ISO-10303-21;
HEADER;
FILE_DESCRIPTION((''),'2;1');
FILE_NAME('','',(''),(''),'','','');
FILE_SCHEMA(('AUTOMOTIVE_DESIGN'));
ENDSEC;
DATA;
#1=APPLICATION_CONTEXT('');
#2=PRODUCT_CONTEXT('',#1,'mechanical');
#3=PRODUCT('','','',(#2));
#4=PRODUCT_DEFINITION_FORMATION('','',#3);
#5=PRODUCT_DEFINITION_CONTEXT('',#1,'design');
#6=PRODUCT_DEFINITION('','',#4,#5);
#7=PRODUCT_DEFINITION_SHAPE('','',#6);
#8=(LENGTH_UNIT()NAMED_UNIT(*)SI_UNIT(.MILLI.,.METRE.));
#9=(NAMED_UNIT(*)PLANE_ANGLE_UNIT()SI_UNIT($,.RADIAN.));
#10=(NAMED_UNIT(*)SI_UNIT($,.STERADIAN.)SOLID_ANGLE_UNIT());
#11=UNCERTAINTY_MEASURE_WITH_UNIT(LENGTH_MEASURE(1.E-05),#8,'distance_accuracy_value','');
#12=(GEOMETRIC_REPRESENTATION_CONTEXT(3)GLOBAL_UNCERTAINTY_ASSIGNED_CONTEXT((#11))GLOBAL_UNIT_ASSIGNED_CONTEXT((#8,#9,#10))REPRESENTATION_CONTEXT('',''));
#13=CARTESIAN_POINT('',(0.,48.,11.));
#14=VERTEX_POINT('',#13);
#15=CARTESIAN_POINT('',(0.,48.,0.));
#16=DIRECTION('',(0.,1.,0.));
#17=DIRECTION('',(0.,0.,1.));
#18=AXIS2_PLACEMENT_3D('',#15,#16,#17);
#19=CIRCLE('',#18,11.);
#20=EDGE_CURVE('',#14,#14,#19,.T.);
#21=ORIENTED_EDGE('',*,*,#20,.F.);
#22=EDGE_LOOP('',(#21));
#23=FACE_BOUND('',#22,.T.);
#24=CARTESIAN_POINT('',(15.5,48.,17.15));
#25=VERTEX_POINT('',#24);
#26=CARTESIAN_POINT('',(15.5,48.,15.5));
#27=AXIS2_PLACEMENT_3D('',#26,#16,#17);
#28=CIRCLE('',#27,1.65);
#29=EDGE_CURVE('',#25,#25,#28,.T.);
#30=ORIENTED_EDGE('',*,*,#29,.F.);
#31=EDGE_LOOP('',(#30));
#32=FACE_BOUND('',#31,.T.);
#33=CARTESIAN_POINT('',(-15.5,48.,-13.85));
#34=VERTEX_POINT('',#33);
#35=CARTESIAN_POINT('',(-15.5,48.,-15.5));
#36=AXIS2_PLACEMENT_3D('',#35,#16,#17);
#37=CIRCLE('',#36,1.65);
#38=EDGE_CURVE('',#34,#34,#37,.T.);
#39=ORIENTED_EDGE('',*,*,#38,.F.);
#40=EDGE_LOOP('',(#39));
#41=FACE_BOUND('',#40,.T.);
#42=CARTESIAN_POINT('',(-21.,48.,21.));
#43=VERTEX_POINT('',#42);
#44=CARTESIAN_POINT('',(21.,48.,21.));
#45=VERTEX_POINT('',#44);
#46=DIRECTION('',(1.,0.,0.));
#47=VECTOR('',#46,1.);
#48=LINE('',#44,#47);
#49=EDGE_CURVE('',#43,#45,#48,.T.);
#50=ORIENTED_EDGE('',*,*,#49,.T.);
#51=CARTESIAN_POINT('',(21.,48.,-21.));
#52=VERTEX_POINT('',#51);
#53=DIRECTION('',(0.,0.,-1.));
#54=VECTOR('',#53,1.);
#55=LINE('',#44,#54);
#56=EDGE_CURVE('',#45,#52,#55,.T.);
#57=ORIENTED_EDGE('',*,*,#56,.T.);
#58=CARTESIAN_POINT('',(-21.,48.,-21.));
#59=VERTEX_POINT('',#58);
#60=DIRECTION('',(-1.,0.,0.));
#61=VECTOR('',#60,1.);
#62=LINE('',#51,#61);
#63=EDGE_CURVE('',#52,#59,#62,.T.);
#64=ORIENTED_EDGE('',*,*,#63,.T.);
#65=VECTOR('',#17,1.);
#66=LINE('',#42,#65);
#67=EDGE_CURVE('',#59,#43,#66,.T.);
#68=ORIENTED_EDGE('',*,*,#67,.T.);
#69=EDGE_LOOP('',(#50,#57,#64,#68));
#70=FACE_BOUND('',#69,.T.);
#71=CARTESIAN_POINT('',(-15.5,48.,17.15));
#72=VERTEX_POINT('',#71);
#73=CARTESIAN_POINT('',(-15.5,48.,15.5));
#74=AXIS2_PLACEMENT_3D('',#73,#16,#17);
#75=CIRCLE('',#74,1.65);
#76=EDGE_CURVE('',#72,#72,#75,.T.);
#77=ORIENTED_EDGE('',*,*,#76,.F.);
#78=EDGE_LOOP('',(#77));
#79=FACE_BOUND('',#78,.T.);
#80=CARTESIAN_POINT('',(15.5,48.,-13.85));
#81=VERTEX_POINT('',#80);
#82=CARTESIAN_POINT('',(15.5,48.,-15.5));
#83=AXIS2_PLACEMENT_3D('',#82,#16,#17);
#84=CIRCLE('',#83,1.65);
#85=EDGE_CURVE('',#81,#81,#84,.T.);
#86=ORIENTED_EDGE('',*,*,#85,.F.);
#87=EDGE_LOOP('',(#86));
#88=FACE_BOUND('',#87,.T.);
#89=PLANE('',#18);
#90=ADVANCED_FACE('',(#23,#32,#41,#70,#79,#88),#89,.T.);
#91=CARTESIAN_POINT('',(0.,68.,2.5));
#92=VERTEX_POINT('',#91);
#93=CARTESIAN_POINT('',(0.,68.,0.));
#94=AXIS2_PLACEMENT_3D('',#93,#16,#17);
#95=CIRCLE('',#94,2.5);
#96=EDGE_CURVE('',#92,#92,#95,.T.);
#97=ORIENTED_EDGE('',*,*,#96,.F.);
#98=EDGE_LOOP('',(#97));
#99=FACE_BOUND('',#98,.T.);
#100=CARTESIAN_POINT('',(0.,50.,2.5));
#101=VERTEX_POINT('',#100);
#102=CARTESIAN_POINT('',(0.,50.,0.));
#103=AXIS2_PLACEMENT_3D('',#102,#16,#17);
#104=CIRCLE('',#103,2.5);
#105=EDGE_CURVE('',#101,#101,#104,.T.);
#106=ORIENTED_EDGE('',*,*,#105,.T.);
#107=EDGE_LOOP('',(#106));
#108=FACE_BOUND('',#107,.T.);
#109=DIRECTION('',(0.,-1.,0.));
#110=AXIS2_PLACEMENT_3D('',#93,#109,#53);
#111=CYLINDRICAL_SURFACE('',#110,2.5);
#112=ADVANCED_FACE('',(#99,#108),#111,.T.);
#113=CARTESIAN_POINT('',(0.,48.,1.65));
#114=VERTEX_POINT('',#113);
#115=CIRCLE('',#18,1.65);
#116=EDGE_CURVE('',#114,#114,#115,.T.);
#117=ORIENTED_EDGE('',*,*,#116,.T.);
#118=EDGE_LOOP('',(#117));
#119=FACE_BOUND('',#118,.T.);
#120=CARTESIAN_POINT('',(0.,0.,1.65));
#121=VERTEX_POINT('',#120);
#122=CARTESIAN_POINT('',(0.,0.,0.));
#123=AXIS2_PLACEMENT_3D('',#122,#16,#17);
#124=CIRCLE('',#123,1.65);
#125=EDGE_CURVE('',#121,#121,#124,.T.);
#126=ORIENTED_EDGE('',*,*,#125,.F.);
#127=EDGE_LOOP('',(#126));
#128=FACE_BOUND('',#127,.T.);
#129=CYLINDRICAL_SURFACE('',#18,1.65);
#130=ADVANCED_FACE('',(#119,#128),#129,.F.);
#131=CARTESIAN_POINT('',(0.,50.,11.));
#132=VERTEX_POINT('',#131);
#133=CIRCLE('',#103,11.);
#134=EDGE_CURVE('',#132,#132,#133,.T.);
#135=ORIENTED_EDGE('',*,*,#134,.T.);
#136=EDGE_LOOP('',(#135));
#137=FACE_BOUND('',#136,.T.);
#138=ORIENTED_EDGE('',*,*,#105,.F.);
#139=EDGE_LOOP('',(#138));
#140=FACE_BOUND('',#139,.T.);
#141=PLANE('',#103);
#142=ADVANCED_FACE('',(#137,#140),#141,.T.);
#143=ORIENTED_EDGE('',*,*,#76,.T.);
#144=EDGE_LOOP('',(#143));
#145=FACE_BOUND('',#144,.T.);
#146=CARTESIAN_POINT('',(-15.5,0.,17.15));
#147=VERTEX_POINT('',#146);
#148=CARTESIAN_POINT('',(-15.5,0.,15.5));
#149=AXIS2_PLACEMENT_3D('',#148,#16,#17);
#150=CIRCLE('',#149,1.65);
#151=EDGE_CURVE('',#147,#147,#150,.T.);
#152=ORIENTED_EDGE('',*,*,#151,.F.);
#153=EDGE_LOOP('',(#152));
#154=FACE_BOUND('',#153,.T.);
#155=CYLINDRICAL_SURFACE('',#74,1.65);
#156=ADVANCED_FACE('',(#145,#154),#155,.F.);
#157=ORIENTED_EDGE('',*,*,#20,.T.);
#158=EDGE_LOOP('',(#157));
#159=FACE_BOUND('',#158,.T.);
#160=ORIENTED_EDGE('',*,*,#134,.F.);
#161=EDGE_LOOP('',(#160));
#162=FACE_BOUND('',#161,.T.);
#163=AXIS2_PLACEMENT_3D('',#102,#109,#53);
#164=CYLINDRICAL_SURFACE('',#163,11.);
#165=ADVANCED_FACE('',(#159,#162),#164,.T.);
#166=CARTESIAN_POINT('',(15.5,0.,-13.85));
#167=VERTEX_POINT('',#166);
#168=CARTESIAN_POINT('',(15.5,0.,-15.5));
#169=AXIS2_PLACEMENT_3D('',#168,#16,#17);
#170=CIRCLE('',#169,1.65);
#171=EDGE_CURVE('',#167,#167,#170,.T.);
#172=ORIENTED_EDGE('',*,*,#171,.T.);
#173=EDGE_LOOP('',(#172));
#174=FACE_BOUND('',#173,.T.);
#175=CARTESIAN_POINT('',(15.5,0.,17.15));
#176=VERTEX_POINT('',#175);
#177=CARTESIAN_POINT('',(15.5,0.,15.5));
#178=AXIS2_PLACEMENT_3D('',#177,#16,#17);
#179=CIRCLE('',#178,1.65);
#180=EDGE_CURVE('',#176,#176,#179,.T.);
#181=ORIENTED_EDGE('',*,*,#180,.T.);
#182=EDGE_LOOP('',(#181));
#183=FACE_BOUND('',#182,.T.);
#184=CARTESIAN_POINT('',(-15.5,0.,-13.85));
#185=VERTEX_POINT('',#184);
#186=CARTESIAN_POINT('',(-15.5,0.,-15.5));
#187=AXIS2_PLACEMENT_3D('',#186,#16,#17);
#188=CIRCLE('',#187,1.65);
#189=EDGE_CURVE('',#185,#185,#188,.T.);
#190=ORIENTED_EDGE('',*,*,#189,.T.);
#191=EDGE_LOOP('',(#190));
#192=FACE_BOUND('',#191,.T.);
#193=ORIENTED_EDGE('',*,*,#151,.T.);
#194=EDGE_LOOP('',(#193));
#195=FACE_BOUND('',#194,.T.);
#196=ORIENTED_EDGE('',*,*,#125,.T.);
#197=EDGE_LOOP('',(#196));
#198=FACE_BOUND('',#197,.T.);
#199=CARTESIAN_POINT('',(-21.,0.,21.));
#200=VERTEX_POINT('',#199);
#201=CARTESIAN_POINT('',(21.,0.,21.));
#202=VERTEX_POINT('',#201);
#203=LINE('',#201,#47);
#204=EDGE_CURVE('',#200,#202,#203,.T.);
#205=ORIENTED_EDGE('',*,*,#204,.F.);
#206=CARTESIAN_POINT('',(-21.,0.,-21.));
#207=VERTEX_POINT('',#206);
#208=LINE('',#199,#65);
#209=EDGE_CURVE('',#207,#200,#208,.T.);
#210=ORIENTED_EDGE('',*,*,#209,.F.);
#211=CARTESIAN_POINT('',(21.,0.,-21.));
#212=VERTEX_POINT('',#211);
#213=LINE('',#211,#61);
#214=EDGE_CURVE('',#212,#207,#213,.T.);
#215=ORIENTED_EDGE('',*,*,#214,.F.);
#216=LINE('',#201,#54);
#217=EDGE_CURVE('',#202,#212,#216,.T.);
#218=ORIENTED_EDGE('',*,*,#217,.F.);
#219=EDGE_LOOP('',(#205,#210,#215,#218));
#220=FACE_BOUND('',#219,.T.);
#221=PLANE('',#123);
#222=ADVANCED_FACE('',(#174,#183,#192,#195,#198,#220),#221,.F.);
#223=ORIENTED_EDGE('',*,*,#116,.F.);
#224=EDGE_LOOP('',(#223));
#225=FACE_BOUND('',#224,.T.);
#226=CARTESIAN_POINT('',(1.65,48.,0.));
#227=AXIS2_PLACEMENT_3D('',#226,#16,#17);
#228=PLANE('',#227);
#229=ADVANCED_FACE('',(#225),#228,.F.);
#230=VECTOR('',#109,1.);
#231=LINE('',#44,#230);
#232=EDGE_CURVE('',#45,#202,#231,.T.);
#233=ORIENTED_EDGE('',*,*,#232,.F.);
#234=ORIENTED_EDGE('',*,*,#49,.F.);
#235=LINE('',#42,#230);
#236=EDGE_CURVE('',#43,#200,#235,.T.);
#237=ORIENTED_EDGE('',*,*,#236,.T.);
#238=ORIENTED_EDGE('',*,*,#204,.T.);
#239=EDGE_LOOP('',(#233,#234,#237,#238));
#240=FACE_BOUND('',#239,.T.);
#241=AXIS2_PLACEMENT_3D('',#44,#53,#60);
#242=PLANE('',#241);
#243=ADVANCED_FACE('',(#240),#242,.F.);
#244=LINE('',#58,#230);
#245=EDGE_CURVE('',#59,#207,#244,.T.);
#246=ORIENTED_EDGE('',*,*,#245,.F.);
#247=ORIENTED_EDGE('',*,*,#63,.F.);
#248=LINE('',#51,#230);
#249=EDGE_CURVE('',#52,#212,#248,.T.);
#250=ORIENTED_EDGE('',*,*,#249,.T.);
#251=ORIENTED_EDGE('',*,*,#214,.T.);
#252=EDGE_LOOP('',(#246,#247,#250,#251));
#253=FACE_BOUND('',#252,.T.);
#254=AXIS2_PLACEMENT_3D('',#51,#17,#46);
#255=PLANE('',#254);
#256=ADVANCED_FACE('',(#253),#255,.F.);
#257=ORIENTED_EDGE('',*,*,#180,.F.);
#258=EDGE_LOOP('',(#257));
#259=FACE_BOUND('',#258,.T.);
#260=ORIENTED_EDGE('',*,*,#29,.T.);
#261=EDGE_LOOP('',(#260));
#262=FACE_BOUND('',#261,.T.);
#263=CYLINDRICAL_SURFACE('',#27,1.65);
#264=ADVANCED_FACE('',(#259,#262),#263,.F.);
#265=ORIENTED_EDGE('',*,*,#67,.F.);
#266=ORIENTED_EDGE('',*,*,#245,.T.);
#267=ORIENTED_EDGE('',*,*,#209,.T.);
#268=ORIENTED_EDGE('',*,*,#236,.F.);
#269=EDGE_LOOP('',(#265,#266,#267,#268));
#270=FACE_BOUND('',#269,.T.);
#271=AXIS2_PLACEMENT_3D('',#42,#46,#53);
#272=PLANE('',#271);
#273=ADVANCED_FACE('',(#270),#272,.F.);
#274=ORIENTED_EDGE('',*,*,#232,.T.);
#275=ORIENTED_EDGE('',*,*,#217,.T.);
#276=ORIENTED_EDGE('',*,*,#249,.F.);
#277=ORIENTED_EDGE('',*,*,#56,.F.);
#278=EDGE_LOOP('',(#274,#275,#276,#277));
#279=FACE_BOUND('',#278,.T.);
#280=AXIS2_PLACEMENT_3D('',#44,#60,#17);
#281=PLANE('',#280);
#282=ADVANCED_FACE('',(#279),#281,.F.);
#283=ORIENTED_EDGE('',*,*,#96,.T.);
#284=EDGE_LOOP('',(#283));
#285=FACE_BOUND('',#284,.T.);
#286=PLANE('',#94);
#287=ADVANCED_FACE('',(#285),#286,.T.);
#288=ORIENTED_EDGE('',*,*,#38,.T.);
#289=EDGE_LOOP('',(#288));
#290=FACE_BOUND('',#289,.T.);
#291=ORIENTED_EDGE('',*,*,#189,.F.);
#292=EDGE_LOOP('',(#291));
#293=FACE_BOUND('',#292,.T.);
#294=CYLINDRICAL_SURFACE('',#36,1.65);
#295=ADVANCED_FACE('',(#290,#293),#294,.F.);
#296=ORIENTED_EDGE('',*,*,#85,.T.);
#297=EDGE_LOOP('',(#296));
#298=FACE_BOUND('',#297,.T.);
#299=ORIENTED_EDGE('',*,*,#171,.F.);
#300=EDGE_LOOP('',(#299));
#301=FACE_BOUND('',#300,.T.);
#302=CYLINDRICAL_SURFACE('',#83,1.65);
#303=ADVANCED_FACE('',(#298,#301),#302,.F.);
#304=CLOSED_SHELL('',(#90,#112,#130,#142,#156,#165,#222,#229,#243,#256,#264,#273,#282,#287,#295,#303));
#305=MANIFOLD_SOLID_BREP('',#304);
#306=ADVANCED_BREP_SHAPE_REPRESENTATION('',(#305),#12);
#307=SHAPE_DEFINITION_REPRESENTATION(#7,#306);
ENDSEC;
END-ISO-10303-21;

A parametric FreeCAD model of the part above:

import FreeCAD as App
import Part
import Sketcher

V = App.Vector
Q = App.Units.Quantity

doc = App.newDocument("Part")
body = doc.addObject("PartDesign::Body", "Body")

sketch1 = body.newObject("Sketcher::SketchObject", "Sketch")
sketch1.AttachmentSupport = (doc.getObject("XZ_Plane"), [""])
sketch1.MapMode = "FlatFace"
sketch1.addGeometry(Part.LineSegment(V(-21, -21, 0), V(-21, 21, 0)), False)
sketch1.addGeometry(Part.LineSegment(V(-21, 21, 0), V(21, 21, 0)), False)
sketch1.addGeometry(Part.LineSegment(V(21, 21, 0), V(21, -21, 0)), False)
sketch1.addGeometry(Part.LineSegment(V(21, -21, 0), V(-21, -21, 0)), False)
sketch1.addConstraint(Sketcher.Constraint("Coincident", 0, 2, 1, 1))
sketch1.addConstraint(Sketcher.Constraint("Coincident", 1, 2, 2, 1))
sketch1.addConstraint(Sketcher.Constraint("Coincident", 2, 2, 3, 1))
sketch1.addConstraint(Sketcher.Constraint("Coincident", 3, 2, 0, 1))
sketch1.addConstraint(Sketcher.Constraint("Vertical", 0))
sketch1.addConstraint(Sketcher.Constraint("Horizontal", 1))
sketch1.addConstraint(Sketcher.Constraint("Vertical", 2))
sketch1.addConstraint(Sketcher.Constraint("Horizontal", 3))
sketch1.addConstraint(Sketcher.Constraint("Symmetric", 0, 2, 2, 2, -1, 1))
sketch1.addConstraint(Sketcher.Constraint("Equal", 3, 0))
sketch1.addConstraint(Sketcher.Constraint("DistanceX", 1, 1, 1, 2, Q("42 mm")))
pad1 = body.newObject("PartDesign::Pad", "Pad")
pad1.Profile = sketch1
pad1.Length = 48
pad1.Reversed = True

sketch2 = body.newObject("Sketcher::SketchObject", "Sketch001")
sketch2.AttachmentSupport = (doc.getObject("XZ_Plane"), [""])
sketch2.MapMode = "FlatFace"
sketch2.AttachmentOffset = App.Placement(V(0, 0, -48), App.Rotation())
sketch2.addGeometry(Part.Circle(V(0, 0, 0), V(0, 0, 1), 2.5), False)
sketch2.addConstraint(Sketcher.Constraint("Coincident", 0, 3, -1, 1))
sketch2.addConstraint(Sketcher.Constraint("Diameter", 0, Q("5 mm")))
pad2 = body.newObject("PartDesign::Pad", "Pad001")
pad2.Profile = sketch2
pad2.Length = 20
pad2.Reversed = True

sketch3 = body.newObject("Sketcher::SketchObject", "Sketch002")
sketch3.AttachmentSupport = (doc.getObject("YZ_Plane"), [""])
sketch3.MapMode = "FlatFace"
sketch3.AttachmentOffset = App.Placement(V(0, 0, -15.5), App.Rotation())
sketch3.addGeometry(Part.LineSegment(V(0, -15.5, 0), V(48, -15.5, 0)), False)
sketch3.addGeometry(Part.LineSegment(V(48, -15.5, 0), V(48, -13.8, 0)), False)
sketch3.addGeometry(Part.LineSegment(V(48, -13.8, 0), V(0, -13.8, 0)), False)
sketch3.addGeometry(Part.LineSegment(V(0, -13.8, 0), V(0, -15.5, 0)), False)
sketch3.addGeometry(Part.LineSegment(V(48, -15.5, 0), V(0, -15.5, 0)), True)
sketch3.addConstraint(Sketcher.Constraint("Coincident", 0, 2, 1, 1))
sketch3.addConstraint(Sketcher.Constraint("Coincident", 1, 2, 2, 1))
sketch3.addConstraint(Sketcher.Constraint("Coincident", 2, 2, 3, 1))
sketch3.addConstraint(Sketcher.Constraint("Coincident", 3, 2, 0, 1))
sketch3.addConstraint(Sketcher.Constraint("Horizontal", 0))
sketch3.addConstraint(Sketcher.Constraint("Vertical", 1))
sketch3.addConstraint(Sketcher.Constraint("Horizontal", 2))
sketch3.addConstraint(Sketcher.Constraint("Vertical", 3))
sketch3.addConstraint(Sketcher.Constraint("Horizontal", 4))
sketch3.addConstraint(Sketcher.Constraint("Coincident", 4, 1, 0, 2))
sketch3.addConstraint(Sketcher.Constraint("PointOnObject", 2, 2, -2))
sketch3.addConstraint(Sketcher.Constraint("PointOnObject", 4, 2, -2))
sketch3.addConstraint(Sketcher.Constraint("DistanceX", 0, 1, 0, 2, Q("48 mm")))
sketch3.addConstraint(Sketcher.Constraint("DistanceY", 1, 1, 1, 2, Q("1.65 mm")))
sketch3.addConstraint(Sketcher.Constraint("DistanceY", 0, 2, -1, 1, Q("15.5 mm")))
groove = body.newObject("PartDesign::Groove", "Groove")
groove.Profile = sketch3
groove.ReferenceAxis = (sketch3, ["Axis0"])
groove.Angle = 360
doc.recompute()

linearpattern = body.newObject("PartDesign::LinearPattern", "LinearPattern")
linearpattern.Originals = [groove]
linearpattern.Direction = (doc.getObject("Z_Axis"), [""])
linearpattern.Mode = "offset"
linearpattern.Offset = 31
linearpattern.Occurrences = 2
body.Tip = linearpattern
doc.recompute()

datumline = body.newObject("PartDesign::Line", "DatumLine")
datumline.Placement = App.Placement(V(0, 0, 0), App.Rotation(V(0, 0, 1), V(0.707106781, 0, 0.707106781)))
linearpattern2 = body.newObject("PartDesign::LinearPattern", "LinearPattern001")
linearpattern2.Originals = [groove]
linearpattern2.Direction = (datumline, [""])
linearpattern2.Mode = "offset"
linearpattern2.Offset = 43.84062
linearpattern2.Occurrences = 2
body.Tip = linearpattern2
doc.recompute()

linearpattern3 = body.newObject("PartDesign::LinearPattern", "LinearPattern002")
linearpattern3.Originals = [groove]
linearpattern3.Direction = (doc.getObject("X_Axis"), [""])
linearpattern3.Mode = "offset"
linearpattern3.Offset = 31
linearpattern3.Occurrences = 2
body.Tip = linearpattern3
doc.recompute()

datumline2 = body.newObject("PartDesign::Line", "DatumLine001")
datumline2.Placement = App.Placement(V(0, 0, 0), App.Rotation(V(0, 0, 1), V(0.707106781, 0, 0.707106781)))
linearpattern4 = body.newObject("PartDesign::LinearPattern", "LinearPattern003")
linearpattern4.Originals = [groove]
linearpattern4.Direction = (datumline2, [""])
linearpattern4.Mode = "offset"
linearpattern4.Offset = 21.92031
linearpattern4.Occurrences = 2
body.Tip = linearpattern4

sketch4 = body.newObject("Sketcher::SketchObject", "Sketch003")
sketch4.AttachmentSupport = (doc.getObject("XZ_Plane"), [""])
sketch4.MapMode = "FlatFace"
sketch4.AttachmentOffset = App.Placement(V(0, 0, -48), App.Rotation())
sketch4.addGeometry(Part.Circle(V(0, 0, 0), V(0, 0, 1), 11), False)
sketch4.addConstraint(Sketcher.Constraint("Coincident", 0, 3, -1, 1))
sketch4.addConstraint(Sketcher.Constraint("Diameter", 0, Q("22 mm")))
pad3 = body.newObject("PartDesign::Pad", "Pad002")
pad3.Profile = sketch4
pad3.Length = 2
pad3.Reversed = True

doc.recompute()
